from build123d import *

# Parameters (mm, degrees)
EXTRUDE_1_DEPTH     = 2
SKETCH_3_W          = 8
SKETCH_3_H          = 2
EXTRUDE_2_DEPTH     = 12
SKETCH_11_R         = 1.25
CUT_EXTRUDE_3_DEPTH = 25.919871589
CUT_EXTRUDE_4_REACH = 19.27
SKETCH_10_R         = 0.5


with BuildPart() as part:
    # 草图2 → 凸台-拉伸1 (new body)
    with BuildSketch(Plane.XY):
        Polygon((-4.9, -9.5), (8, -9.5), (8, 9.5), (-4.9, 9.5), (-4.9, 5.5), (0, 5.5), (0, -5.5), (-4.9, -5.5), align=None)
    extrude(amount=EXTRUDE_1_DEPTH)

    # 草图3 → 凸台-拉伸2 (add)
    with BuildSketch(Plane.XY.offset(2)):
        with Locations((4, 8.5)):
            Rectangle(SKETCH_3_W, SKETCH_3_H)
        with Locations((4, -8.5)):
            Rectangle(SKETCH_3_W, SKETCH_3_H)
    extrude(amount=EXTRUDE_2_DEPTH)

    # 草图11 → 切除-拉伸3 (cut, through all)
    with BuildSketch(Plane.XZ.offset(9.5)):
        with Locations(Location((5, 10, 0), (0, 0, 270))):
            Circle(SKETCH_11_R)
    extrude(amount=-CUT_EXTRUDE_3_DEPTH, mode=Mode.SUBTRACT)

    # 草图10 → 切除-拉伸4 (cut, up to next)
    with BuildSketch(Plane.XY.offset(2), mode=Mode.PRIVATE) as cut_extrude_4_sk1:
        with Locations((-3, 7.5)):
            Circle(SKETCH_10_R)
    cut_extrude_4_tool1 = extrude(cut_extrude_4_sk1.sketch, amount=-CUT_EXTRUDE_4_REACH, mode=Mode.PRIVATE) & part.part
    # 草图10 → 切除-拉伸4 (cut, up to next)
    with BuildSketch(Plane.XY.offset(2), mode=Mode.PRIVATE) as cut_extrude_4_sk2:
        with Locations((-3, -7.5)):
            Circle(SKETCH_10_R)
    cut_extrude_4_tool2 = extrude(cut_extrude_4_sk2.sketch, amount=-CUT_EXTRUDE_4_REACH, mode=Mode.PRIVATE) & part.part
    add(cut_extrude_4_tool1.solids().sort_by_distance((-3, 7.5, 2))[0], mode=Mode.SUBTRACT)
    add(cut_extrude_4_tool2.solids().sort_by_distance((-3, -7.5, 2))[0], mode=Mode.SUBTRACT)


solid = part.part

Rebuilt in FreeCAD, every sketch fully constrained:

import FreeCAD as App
import Part
import Sketcher
Q = App.Units.Quantity


def add_polygon(sketch, points):
    """Adds a closed chain of lines whose ends are joined by coincident constraints."""
    first, n = sketch.GeometryCount, len(points)
    for a, b in zip(points, points[1:] + points[:1]):
        sketch.addGeometry(Part.LineSegment(App.Vector(*a, 0), App.Vector(*b, 0)), False)
    for i in range(n):
        sketch.addConstraint(Sketcher.Constraint("Coincident", first + i, 2, first + (i + 1) % n, 1))

doc = App.newDocument("Part")
params = doc.addObject("Spreadsheet::Sheet", "Params")
for row, (alias, value) in enumerate([
    ("sketch1_height", "19 mm"),
    ("sketch1_height2", "4 mm"),
    ("sketch1_width", "12.9 mm"),
    ("sketch1_width2", "4.9 mm"),
    ("pad1_length", "2 mm"),
    ("sketch2_width", "8 mm"),
    ("sketch2_height", "2 mm"),
    ("pad2_length", "12 mm"),
    ("sketch3_diameter", "2.5 mm"),
    ("sketch4_diameter", "1 mm"),
    ("sketch5_diameter", "1 mm"),
], start=1):
    params.set(f"A{row}", alias)
    params.set(f"B{row}", "=" + value)
    params.setAlias(f"B{row}", alias)

body = doc.addObject("PartDesign::Body", "Body")

sketch1 = body.newObject("Sketcher::SketchObject", "Sketch")
sketch1.AttachmentSupport = (doc.getObject("XY_Plane"), [""])
sketch1.MapMode = "FlatFace"
add_polygon(sketch1, [(-4.9, -9.5), (8, -9.5), (8, 9.5), (-4.9, 9.5), (-4.9, 5.5), (0, 5.5), (0, -5.5), (-4.9, -5.5)])
sketch1.addConstraint(Sketcher.Constraint("Horizontal", 0))
sketch1.addConstraint(Sketcher.Constraint("Vertical", 1))
sketch1.addConstraint(Sketcher.Constraint("Horizontal", 2))
sketch1.addConstraint(Sketcher.Constraint("Vertical", 3))
sketch1.addConstraint(Sketcher.Constraint("Horizontal", 4))
sketch1.addConstraint(Sketcher.Constraint("Vertical", 5))
sketch1.addConstraint(Sketcher.Constraint("Horizontal", 6))
sketch1.addConstraint(Sketcher.Constraint("Vertical", 7))
sketch1.addConstraint(Sketcher.Constraint("Symmetric", 4, 2, 5, 2, -1, 1))
sketch1.addConstraint(Sketcher.Constraint("Symmetric", 2, 2, 7, 2, -1))
sketch1.addConstraint(Sketcher.Constraint("DistanceY", 1, 1, 1, 2, Q("19 mm")))
sketch1.addConstraint(Sketcher.Constraint("DistanceY", 3, 2, 3, 1, Q("4 mm")))
sketch1.addConstraint(Sketcher.Constraint("DistanceX", 0, 1, 0, 2, Q("12.9 mm")))
sketch1.addConstraint(Sketcher.Constraint("DistanceX", 4, 1, 4, 2, Q("4.9 mm")))
sketch1.setExpression("Constraints[18]", "Params.sketch1_height")
sketch1.setExpression("Constraints[19]", "Params.sketch1_height2")
sketch1.setExpression("Constraints[20]", "Params.sketch1_width")
sketch1.setExpression("Constraints[21]", "Params.sketch1_width2")
pad1 = body.newObject("PartDesign::Pad", "Pad")
pad1.Profile = sketch1
pad1.setExpression("Length", "Params.pad1_length")

sketch2 = body.newObject("Sketcher::SketchObject", "Sketch001")
sketch2.AttachmentSupport = (doc.getObject("XY_Plane"), [""])
sketch2.MapMode = "FlatFace"
sketch2.AttachmentOffset = App.Placement(App.Vector(0, 0, 2), App.Rotation())
add_polygon(sketch2, [(0, 9.5), (0, 7.5), (8, 7.5), (8, 9.5)])
add_polygon(sketch2, [(0, -7.5), (0, -9.5), (8, -9.5), (8, -7.5)])
sketch2.addConstraint(Sketcher.Constraint("Vertical", 0))
sketch2.addConstraint(Sketcher.Constraint("Horizontal", 1))
sketch2.addConstraint(Sketcher.Constraint("Vertical", 2))
sketch2.addConstraint(Sketcher.Constraint("Horizontal", 3))
sketch2.addConstraint(Sketcher.Constraint("Vertical", 4))
sketch2.addConstraint(Sketcher.Constraint("Horizontal", 5))
sketch2.addConstraint(Sketcher.Constraint("Vertical", 6))
sketch2.addConstraint(Sketcher.Constraint("Horizontal", 7))
sketch2.addConstraint(Sketcher.Constraint("Symmetric", 3, 2, 4, 2, -1, 1))
sketch2.addConstraint(Sketcher.Constraint("Symmetric", 1, 2, 6, 2, -1))
sketch2.addConstraint(Sketcher.Constraint("PointOnObject", 0, 2, -2))
sketch2.addConstraint(Sketcher.Constraint("DistanceX", 1, 1, 1, 2, Q("8 mm")))
sketch2.addConstraint(Sketcher.Constraint("DistanceY", 0, 2, 0, 1, Q("2 mm")))
sketch2.addConstraint(Sketcher.Constraint("DistanceY", 4, 2, 0, 2, Q("17 mm")))
sketch2.setExpression("Constraints[19]", "Params.sketch2_width")
sketch2.setExpression("Constraints[20]", "Params.sketch2_height")
pad2 = body.newObject("PartDesign::Pad", "Pad001")
pad2.Profile = sketch2
pad2.setExpression("Length", "Params.pad2_length")

sketch3 = body.newObject("Sketcher::SketchObject", "Sketch002")
sketch3.AttachmentSupport = (doc.getObject("XZ_Plane"), [""])
sketch3.MapMode = "FlatFace"
sketch3.AttachmentOffset = App.Placement(App.Vector(0, 0, 9.5), App.Rotation())
sketch3.addGeometry(Part.Circle(App.Vector(5, 10, 0), App.Vector(0, 0, 1), 1.2), False)
sketch3.addConstraint(Sketcher.Constraint("Diameter", 0, Q("2.5 mm")))
sketch3.addConstraint(Sketcher.Constraint("DistanceX", -1, 1, 0, 3, Q("5 mm")))
sketch3.addConstraint(Sketcher.Constraint("DistanceY", -1, 1, 0, 3, Q("10 mm")))
sketch3.setExpression("Constraints[0]", "Params.sketch3_diameter")
pocket1 = body.newObject("PartDesign::Pocket", "Pocket")
pocket1.Profile = sketch3
pocket1.Type = "ThroughAll"

sketch4 = body.newObject("Sketcher::SketchObject", "Sketch003")
sketch4.AttachmentSupport = (doc.getObject("XY_Plane"), [""])
sketch4.MapMode = "FlatFace"
sketch4.AttachmentOffset = App.Placement(App.Vector(0, 0, 2), App.Rotation())
sketch4.addGeometry(Part.Circle(App.Vector(-3, 7.5, 0), App.Vector(0, 0, 1), 0.5), False)
sketch4.addConstraint(Sketcher.Constraint("Diameter", 0, Q("1 mm")))
sketch4.addConstraint(Sketcher.Constraint("DistanceX", 0, 3, -1, 1, Q("3 mm")))
sketch4.addConstraint(Sketcher.Constraint("DistanceY", -1, 1, 0, 3, Q("7.5 mm")))
sketch4.setExpression("Constraints[0]", "Params.sketch4_diameter")
pocket2 = body.newObject("PartDesign::Pocket", "Pocket001")
pocket2.Profile = sketch4
pocket2.Type = "UpToFirst"

sketch5 = body.newObject("Sketcher::SketchObject", "Sketch004")
sketch5.AttachmentSupport = (doc.getObject("XY_Plane"), [""])
sketch5.MapMode = "FlatFace"
sketch5.AttachmentOffset = App.Placement(App.Vector(0, 0, 2), App.Rotation())
sketch5.addGeometry(Part.Circle(App.Vector(-3, -7.5, 0), App.Vector(0, 0, 1), 0.5), False)
sketch5.addConstraint(Sketcher.Constraint("Diameter", 0, Q("1 mm")))
sketch5.addConstraint(Sketcher.Constraint("DistanceX", 0, 3, -1, 1, Q("3 mm")))
sketch5.addConstraint(Sketcher.Constraint("DistanceY", 0, 3, -1, 1, Q("7.5 mm")))
sketch5.setExpression("Constraints[0]", "Params.sketch5_diameter")
pocket3 = body.newObject("PartDesign::Pocket", "Pocket002")
pocket3.Profile = sketch5
pocket3.Type = "UpToFirst"

doc.recompute()
